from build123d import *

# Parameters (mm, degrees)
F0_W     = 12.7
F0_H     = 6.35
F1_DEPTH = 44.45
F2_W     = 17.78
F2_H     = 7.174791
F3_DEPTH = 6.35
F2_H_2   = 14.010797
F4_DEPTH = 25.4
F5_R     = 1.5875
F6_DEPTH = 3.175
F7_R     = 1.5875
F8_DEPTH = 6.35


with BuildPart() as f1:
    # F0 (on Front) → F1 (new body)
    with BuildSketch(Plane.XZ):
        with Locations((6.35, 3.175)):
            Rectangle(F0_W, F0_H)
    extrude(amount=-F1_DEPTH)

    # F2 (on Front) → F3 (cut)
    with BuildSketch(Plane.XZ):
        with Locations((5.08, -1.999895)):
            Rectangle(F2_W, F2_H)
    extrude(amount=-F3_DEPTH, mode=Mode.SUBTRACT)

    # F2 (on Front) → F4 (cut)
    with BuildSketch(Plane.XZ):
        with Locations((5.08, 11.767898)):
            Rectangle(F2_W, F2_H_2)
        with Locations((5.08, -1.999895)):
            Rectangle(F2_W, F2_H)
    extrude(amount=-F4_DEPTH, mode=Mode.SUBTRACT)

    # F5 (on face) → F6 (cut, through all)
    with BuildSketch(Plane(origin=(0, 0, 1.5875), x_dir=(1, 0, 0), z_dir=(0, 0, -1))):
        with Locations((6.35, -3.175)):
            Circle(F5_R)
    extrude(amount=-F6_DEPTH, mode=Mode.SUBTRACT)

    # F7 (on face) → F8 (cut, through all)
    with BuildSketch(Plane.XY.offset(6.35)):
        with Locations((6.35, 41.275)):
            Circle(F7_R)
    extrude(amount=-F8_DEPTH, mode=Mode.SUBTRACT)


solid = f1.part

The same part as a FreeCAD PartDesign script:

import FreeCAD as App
import Part
import Sketcher
Q = App.Units.Quantity


def add_polygon(sketch, points):
    """Adds a closed chain of lines whose ends are joined by coincident constraints."""
    first, n = sketch.GeometryCount, len(points)
    for a, b in zip(points, points[1:] + points[:1]):
        sketch.addGeometry(Part.LineSegment(App.Vector(*a, 0), App.Vector(*b, 0)), False)
    for i in range(n):
        sketch.addConstraint(Sketcher.Constraint("Coincident", first + i, 2, first + (i + 1) % n, 1))

doc = App.newDocument("Part")
params = doc.addObject("Spreadsheet::Sheet", "Params")
for row, (alias, value) in enumerate([
    ("sketch1_width", "0.5 in"),
    ("sketch1_height", "0.25 in"),
    ("pad1_length", "1.75 in"),
    ("sketch2_width", "0.7 in"),
    ("pocket1_length", "0.25 in"),
    ("sketch3_width", "0.7 in"),
    ("pocket2_length", "1 in"),
    ("sketch4_diameter", "0.125 in"),
    ("sketch5_diameter", "0.125 in"),
], start=1):
    params.set(f"A{row}", alias)
    params.set(f"B{row}", "=" + value)
    params.setAlias(f"B{row}", alias)

body = doc.addObject("PartDesign::Body", "Body")

sketch1 = body.newObject("Sketcher::SketchObject", "Sketch")
sketch1.AttachmentSupport = (doc.getObject("XZ_Plane"), [""])
sketch1.MapMode = "FlatFace"
add_polygon(sketch1, [(0, 6), (0, 0), (13, 0), (13, 6)])
sketch1.addConstraint([
    Sketcher.Constraint("Vertical", 0),
    Sketcher.Constraint("Horizontal", 1),
    Sketcher.Constraint("Vertical", 2),
    Sketcher.Constraint("Horizontal", 3),
    Sketcher.Constraint("Coincident", 0, 2, -1, 1),
    Sketcher.Constraint("DistanceX", 1, 1, 1, 2, Q("0.5 in")),
    Sketcher.Constraint("DistanceY", 0, 2, 0, 1, Q("0.25 in")),
])
sketch1.setExpression("Constraints[9]", "Params.sketch1_width")
sketch1.setExpression("Constraints[10]", "Params.sketch1_height")
pad1 = body.newObject("PartDesign::Pad", "Pad")
pad1.Profile = sketch1
pad1.setExpression("Length", "Params.pad1_length")
pad1.Reversed = True

sketch2 = body.newObject("Sketcher::SketchObject", "Sketch001")
sketch2.AttachmentSupport = (doc.getObject("XZ_Plane"), [""])
sketch2.MapMode = "FlatFace"
add_polygon(sketch2, [(-4, 2), (-4, -6), (14, -6), (14, 2)])
sketch2.addConstraint([
    Sketcher.Constraint("Vertical", 0),
    Sketcher.Constraint("Horizontal", 1),
    Sketcher.Constraint("Vertical", 2),
    Sketcher.Constraint("Horizontal", 3),
    Sketcher.Constraint("DistanceX", 1, 1, 1, 2, Q("0.7 in")),
    Sketcher.Constraint("DistanceX", 0, 2, -1, 1, Q("0.15 in")),
    Sketcher.Constraint("DistanceY", -1, 1, 2, 2, Q("0.0625 in")),
    Sketcher.Constraint("DistanceY", 0, 2, 0, 1, 7.174791),
])
sketch2.setExpression("Constraints[8]", "Params.sketch2_width")
pocket1 = body.newObject("PartDesign::Pocket", "Pocket")
pocket1.Profile = sketch2
pocket1.setExpression("Length", "Params.pocket1_length")

sketch3 = body.newObject("Sketcher::SketchObject", "Sketch002")
sketch3.AttachmentSupport = (doc.getObject("XZ_Plane"), [""])
sketch3.MapMode = "FlatFace"
add_polygon(sketch3, [(-4, 19), (-4, 5), (14, 5), (14, 19)])
add_polygon(sketch3, [(-4, 2), (-4, -6), (14, -6), (14, 2)])
sketch3.addConstraint([
    Sketcher.Constraint("Vertical", 0),
    Sketcher.Constraint("Horizontal", 1),
    Sketcher.Constraint("Vertical", 2),
    Sketcher.Constraint("Horizontal", 3),
    Sketcher.Constraint("Vertical", 4),
    Sketcher.Constraint("Horizontal", 5),
    Sketcher.Constraint("Vertical", 6),
    Sketcher.Constraint("Horizontal", 7),
    Sketcher.Constraint("Vertical", 3, 2, 4, 2),
    Sketcher.Constraint("Vertical", 2, 2, 5, 2),
    Sketcher.Constraint("DistanceX", 1, 1, 1, 2, Q("0.7 in")),
    Sketcher.Constraint("DistanceX", 0, 2, -1, 1, Q("0.15 in")),
    Sketcher.Constraint("DistanceY", -1, 1, 0, 2, Q("0.1875 in")),
    Sketcher.Constraint("DistanceY", -1, 1, 6, 2, Q("0.0625 in")),
    Sketcher.Constraint("DistanceY", 4, 2, 4, 1, 7.174791),
    Sketcher.Constraint("DistanceY", 0, 2, 0, 1, 14.010797),
])
sketch3.setExpression("Constraints[18]", "Params.sketch3_width")
pocket2 = body.newObject("PartDesign::Pocket", "Pocket001")
pocket2.Profile = sketch3
pocket2.setExpression("Length", "Params.pocket2_length")

sketch4 = body.newObject("Sketcher::SketchObject", "Sketch003")
sketch4.AttachmentSupport = (doc.getObject("XY_Plane"), [""])
sketch4.MapMode = "FlatFace"
sketch4.AttachmentOffset = App.Placement(App.Vector(0, 0, 0.0625 * 25.4), App.Rotation())
sketch4.addGeometry(Part.Circle(App.Vector(6.3, 3.2, 0), App.Vector(0, 0, 1), 1.6), False)
sketch4.addConstraint([
    Sketcher.Constraint("Diameter", 0, Q("0.125 in")),
    Sketcher.Constraint("DistanceX", -1, 1, 0, 3, Q("0.25 in")),
    Sketcher.Constraint("DistanceY", -1, 1, 0, 3, Q("0.125 in")),
])
sketch4.setExpression("Constraints[0]", "Params.sketch4_diameter")
pocket3 = body.newObject("PartDesign::Pocket", "Pocket002")
pocket3.Profile = sketch4
pocket3.Type = "ThroughAll"
pocket3.Reversed = True

sketch5 = body.newObject("Sketcher::SketchObject", "Sketch004")
sketch5.AttachmentSupport = (doc.getObject("XY_Plane"), [""])
sketch5.MapMode = "FlatFace"
sketch5.AttachmentOffset = App.Placement(App.Vector(0, 0, 0.25 * 25.4), App.Rotation())
sketch5.addGeometry(Part.Circle(App.Vector(6.3, 41.3, 0), App.Vector(0, 0, 1), 1.6), False)
sketch5.addConstraint([
    Sketcher.Constraint("Diameter", 0, Q("0.125 in")),
    Sketcher.Constraint("DistanceX", -1, 1, 0, 3, Q("0.25 in")),
    Sketcher.Constraint("DistanceY", -1, 1, 0, 3, Q("1.625 in")),
])
sketch5.setExpression("Constraints[0]", "Params.sketch5_diameter")
pocket4 = body.newObject("PartDesign::Pocket", "Pocket003")
pocket4.Profile = sketch5
pocket4.Type = "ThroughAll"

doc.recompute()
